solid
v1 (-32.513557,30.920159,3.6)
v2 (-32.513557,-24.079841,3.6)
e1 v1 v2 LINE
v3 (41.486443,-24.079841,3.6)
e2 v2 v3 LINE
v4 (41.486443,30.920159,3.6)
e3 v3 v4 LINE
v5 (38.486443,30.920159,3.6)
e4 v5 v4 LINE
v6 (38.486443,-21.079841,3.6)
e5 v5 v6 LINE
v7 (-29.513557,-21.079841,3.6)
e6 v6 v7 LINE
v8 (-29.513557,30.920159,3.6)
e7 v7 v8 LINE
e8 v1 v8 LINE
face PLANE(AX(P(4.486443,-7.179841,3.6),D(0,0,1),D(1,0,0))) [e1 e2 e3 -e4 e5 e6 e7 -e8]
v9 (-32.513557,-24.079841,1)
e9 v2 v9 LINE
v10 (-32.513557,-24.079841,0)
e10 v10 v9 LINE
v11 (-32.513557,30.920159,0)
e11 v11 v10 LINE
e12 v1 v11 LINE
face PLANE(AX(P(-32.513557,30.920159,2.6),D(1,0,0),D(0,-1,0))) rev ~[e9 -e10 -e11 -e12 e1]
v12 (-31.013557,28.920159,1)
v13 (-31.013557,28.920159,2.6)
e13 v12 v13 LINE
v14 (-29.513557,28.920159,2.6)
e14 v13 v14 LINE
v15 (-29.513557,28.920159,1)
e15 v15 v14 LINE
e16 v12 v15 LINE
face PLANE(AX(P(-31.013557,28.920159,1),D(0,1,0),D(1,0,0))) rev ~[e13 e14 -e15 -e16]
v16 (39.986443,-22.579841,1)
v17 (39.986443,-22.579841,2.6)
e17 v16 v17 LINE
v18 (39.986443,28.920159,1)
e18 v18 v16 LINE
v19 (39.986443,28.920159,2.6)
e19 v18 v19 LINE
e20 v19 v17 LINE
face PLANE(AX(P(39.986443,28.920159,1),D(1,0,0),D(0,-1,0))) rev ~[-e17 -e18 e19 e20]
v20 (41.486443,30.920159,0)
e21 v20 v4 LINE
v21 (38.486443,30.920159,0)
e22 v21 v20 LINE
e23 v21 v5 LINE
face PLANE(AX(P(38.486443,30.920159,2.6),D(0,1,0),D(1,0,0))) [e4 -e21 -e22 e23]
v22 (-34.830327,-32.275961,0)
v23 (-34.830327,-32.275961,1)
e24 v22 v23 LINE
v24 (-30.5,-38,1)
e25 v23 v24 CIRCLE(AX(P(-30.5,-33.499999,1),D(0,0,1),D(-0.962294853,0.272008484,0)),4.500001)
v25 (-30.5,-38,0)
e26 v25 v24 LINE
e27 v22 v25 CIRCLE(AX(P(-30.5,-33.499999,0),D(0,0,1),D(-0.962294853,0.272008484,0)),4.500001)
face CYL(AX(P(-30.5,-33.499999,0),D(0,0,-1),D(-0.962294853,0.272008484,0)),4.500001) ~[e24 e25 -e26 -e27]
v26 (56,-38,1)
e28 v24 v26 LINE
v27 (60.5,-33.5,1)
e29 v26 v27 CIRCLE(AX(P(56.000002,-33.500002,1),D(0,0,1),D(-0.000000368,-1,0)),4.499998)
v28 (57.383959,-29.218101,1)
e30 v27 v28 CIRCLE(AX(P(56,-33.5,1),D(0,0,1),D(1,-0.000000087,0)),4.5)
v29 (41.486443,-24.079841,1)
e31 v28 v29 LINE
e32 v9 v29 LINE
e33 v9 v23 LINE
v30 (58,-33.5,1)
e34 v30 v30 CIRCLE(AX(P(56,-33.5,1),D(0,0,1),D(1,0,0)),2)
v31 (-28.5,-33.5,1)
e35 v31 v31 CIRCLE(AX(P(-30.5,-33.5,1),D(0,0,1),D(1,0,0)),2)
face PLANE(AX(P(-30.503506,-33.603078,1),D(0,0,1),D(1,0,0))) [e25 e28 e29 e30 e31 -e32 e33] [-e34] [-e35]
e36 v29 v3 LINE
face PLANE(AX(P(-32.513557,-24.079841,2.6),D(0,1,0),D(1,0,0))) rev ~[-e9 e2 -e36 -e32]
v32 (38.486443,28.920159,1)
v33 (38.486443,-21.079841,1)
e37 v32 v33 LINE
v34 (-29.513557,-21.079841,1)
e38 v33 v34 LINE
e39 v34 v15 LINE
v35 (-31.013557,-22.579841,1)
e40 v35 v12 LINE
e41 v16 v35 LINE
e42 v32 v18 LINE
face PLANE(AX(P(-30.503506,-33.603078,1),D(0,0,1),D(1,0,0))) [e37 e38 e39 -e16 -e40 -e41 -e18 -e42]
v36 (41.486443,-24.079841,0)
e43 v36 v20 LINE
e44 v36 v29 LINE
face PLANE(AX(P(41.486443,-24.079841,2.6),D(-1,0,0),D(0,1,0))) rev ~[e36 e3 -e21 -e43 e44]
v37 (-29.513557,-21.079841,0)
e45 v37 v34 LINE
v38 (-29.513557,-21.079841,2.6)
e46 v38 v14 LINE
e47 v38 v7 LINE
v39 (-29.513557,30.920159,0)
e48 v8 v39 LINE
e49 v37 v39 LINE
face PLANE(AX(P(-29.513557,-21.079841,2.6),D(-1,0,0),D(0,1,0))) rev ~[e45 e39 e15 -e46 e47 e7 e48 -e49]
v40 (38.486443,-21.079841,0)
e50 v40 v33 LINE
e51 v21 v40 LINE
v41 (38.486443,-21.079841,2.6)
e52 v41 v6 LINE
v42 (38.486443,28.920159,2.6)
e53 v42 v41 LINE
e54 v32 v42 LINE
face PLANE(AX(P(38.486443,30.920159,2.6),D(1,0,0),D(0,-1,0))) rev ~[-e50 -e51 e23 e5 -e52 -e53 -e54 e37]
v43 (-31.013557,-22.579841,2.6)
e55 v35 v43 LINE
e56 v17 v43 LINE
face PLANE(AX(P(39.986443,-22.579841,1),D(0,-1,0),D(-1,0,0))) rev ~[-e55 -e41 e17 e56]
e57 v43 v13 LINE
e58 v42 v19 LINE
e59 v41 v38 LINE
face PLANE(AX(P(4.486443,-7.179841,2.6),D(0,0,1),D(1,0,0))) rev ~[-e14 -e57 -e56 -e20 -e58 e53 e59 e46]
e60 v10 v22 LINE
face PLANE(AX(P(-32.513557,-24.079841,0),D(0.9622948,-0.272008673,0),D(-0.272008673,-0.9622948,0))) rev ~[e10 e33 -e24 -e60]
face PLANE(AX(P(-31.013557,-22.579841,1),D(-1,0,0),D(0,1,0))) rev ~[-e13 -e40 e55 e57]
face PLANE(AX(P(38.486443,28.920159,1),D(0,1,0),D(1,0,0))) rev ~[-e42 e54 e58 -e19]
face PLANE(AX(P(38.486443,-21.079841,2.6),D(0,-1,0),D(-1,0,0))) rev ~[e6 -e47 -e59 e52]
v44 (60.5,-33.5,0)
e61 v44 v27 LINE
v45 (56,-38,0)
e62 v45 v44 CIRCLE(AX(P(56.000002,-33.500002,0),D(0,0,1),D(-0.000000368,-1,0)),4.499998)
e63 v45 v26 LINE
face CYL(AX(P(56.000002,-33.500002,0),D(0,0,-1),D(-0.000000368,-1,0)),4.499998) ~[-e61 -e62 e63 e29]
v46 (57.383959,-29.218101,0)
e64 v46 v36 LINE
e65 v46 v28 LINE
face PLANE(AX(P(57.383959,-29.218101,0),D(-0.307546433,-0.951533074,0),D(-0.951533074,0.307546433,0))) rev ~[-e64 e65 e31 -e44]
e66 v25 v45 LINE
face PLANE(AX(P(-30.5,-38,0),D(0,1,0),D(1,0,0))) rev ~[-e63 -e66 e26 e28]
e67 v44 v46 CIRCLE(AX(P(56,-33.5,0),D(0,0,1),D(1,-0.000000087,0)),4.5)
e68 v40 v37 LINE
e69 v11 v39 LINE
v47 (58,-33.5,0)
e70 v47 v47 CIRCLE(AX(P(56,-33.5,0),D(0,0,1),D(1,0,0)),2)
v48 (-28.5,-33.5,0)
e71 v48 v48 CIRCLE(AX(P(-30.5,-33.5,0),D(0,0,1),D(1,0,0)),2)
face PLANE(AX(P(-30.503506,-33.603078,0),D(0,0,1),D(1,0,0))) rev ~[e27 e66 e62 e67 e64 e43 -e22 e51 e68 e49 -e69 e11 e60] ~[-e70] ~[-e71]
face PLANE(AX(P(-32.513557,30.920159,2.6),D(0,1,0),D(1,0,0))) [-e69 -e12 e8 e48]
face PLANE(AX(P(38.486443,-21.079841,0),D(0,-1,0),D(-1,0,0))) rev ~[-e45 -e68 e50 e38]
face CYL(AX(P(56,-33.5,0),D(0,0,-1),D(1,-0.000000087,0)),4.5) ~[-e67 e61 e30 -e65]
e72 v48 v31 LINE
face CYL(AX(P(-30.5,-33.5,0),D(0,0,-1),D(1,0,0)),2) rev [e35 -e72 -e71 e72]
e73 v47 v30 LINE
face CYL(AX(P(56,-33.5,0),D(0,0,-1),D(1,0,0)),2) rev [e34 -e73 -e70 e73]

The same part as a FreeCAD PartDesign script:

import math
import FreeCAD as App
import Part
import Sketcher
from FreeCAD import Vector


def add_polygon(sketch, points):
    """Adds a closed chain of lines whose ends are joined by coincident constraints."""
    first, n = sketch.GeometryCount, len(points)
    for a, b in zip(points, points[1:] + points[:1]):
        sketch.addGeometry(Part.LineSegment(App.Vector(*a, 0), App.Vector(*b, 0)), False)
    for i in range(n):
        sketch.addConstraint(Sketcher.Constraint("Coincident", first + i, 2, first + (i + 1) % n, 1))

doc = App.newDocument("Part")
params = doc.addObject("Spreadsheet::Sheet", "Params")
for row, (alias, value) in enumerate([
    ("sketch1_diameter", "4 mm"),
    ("sketch1_diameter2", "4 mm"),
    ("sketch1_radius", "4.500001 mm"),
    ("sketch1_radius2", "4.499998 mm"),
    ("sketch1_width", "3 mm"),
    ("pad1_length", "1 mm"),
    ("sketch2_width", "74 mm"),
    ("sketch2_width2", "3 mm"),
    ("sketch2_width3", "71 mm"),
    ("sketch2_height", "55 mm"),
    ("sketch2_height2", "2 mm"),
    ("pad2_length", "1.6 mm"),
    ("sketch3_width", "74 mm"),
    ("sketch3_width2", "3 mm"),
    ("sketch3_height", "55 mm"),
    ("sketch3_height2", "52 mm"),
    ("pad3_length", "1 mm"),
], start=1):
    params.set(f"A{row}", alias)
    params.set(f"B{row}", "=" + value)
    params.setAlias(f"B{row}", alias)

body = doc.addObject("PartDesign::Body", "Body")

# Sketch on XY plane
sketch1 = body.newObject("Sketcher::SketchObject", "Sketch")
sketch1.AttachmentSupport = (doc.getObject("XY_Plane"), [""])
sketch1.MapMode = "FlatFace"
sketch1.addGeometry([
    Part.ArcOfCircle(Part.Circle(Vector(-30.5, -33.499999, 0), Vector(0, 0, 1), 4.500001), math.radians(164.216182), math.radians(269.999994)),  # 0
    Part.LineSegment(Vector(-30.5, -38, 0), Vector(56, -38, 0)),  # 1
    Part.ArcOfCircle(Part.Circle(Vector(56.000002, -33.500002, 0), Vector(0, 0, 1), 4.499998), math.radians(-90.000021), math.radians(0.000021)),  # 2
    Part.ArcOfCircle(Part.Circle(Vector(56, -33.5, 0), Vector(0, 0, 1), 4.5), math.radians(-0.000005), math.radians(72.088573)),  # 3
    Part.LineSegment(Vector(57.383959, -29.218101, 0), Vector(41.486443, -24.079841, 0)),  # 4
    Part.LineSegment(Vector(41.486443, -24.079841, 0), Vector(41.486443, 30.920159, 0)),  # 5
    Part.LineSegment(Vector(41.486443, 30.920159, 0), Vector(38.486443, 30.920159, 0)),  # 6
    Part.LineSegment(Vector(38.486443, 30.920159, 0), Vector(38.486443, -21.079841, 0)),  # 7
    Part.LineSegment(Vector(38.486443, -21.079841, 0), Vector(-29.513557, -21.079841, 0)),  # 8
    Part.LineSegment(Vector(-29.513557, -21.079841, 0), Vector(-29.513557, 30.920159, 0)),  # 9
    Part.LineSegment(Vector(-29.513557, 30.920159, 0), Vector(-32.513557, 30.920159, 0)),  # 10
    Part.LineSegment(Vector(-32.513557, 30.920159, 0), Vector(-32.513557, -24.079841, 0)),  # 11
    Part.LineSegment(Vector(-32.513557, -24.079841, 0), Vector(-34.830327, -32.275961, 0)),  # 12
    Part.Circle(Vector(-30.5, -33.5, 0), Vector(0, 0, 1), 2),  # 13
    Part.Circle(Vector(56, -33.5, 0), Vector(0, 0, 1), 2),  # 14
], False)
sketch1.addConstraint([
    Sketcher.Constraint("Coincident", 0, 2, 1, 1),
    Sketcher.Constraint("Coincident", 1, 2, 2, 1),
    Sketcher.Constraint("Coincident", 2, 2, 3, 1),
    Sketcher.Constraint("Coincident", 3, 2, 4, 1),
    Sketcher.Constraint("Coincident", 4, 2, 5, 1),
    Sketcher.Constraint("Coincident", 5, 2, 6, 1),
    Sketcher.Constraint("Coincident", 6, 2, 7, 1),
    Sketcher.Constraint("Coincident", 7, 2, 8, 1),
    Sketcher.Constraint("Coincident", 8, 2, 9, 1),
    Sketcher.Constraint("Coincident", 9, 2, 10, 1),
    Sketcher.Constraint("Coincident", 10, 2, 11, 1),
    Sketcher.Constraint("Coincident", 11, 2, 12, 1),
    Sketcher.Constraint("Coincident", 12, 2, 0, 1),
    Sketcher.Constraint("Horizontal", 1),
    Sketcher.Constraint("Vertical", 5),
    Sketcher.Constraint("Horizontal", 6),
    Sketcher.Constraint("Vertical", 7),
    Sketcher.Constraint("Horizontal", 8),
    Sketcher.Constraint("Vertical", 9),
    Sketcher.Constraint("Horizontal", 10),
    Sketcher.Constraint("Vertical", 11),
    Sketcher.Constraint("Coincident", 3, 3, 2, 3),
    Sketcher.Constraint("Coincident", 13, 3, 0, 3),
    Sketcher.Constraint("Coincident", 14, 3, 2, 3),
    Sketcher.Constraint("Diameter", 13, 4.0),
    Sketcher.Constraint("Diameter", 14, 4.0),
    Sketcher.Constraint("Radius", 0, 4.500001),
    Sketcher.Constraint("Radius", 2, 4.499998),
    Sketcher.Constraint("DistanceX", 6, 2, 6, 1, 3.0),
    Sketcher.Constraint("DistanceX", 8, 2, 8, 1, 68.0),
    Sketcher.Constraint("DistanceX", 10, 2, 10, 1, 3.0),
    Sketcher.Constraint("DistanceY", 5, 1, 5, 2, 55.0),
    Sketcher.Constraint("DistanceY", 7, 2, 7, 1, 52.0),
    Sketcher.Constraint("DistanceY", 9, 1, 9, 2, 52.0),
    Sketcher.Constraint("DistanceY", 11, 2, 11, 1, 55.0),
    Sketcher.Constraint("DistanceX", 1, 1, 1, 2, 86.5),
    Sketcher.Constraint("DistanceX", -1, 1, 2, 3, 56.000002),
    Sketcher.Constraint("DistanceY", 0, 2, -1, 1, 38.0),
    Sketcher.Constraint("DistanceX", -1, 1, 1, 2, 56.0),
    Sketcher.Constraint("DistanceX", 0, 3, 2, 2, 91.0),
    Sketcher.Constraint("DistanceY", 2, 2, -1, 1, 33.5),
    Sketcher.Constraint("DistanceY", 3, 2, -1, 1, 29.218101),
    Sketcher.Constraint("DistanceY", 4, 2, -1, 1, 24.079841),
    Sketcher.Constraint("DistanceY", 12, 2, -1, 1, 32.275961),
    Sketcher.Constraint("DistanceX", 4, 2, 2, 3, 14.513559),
])
sketch1.setExpression("Constraints[24]", "Params.sketch1_diameter")
sketch1.setExpression("Constraints[25]", "Params.sketch1_diameter2")
sketch1.setExpression("Constraints[26]", "Params.sketch1_radius")
sketch1.setExpression("Constraints[27]", "Params.sketch1_radius2")
sketch1.setExpression("Constraints[28]", "Params.sketch1_width")
pad1 = body.newObject("PartDesign::Pad", "Pad")
pad1.Profile = sketch1
pad1.setExpression("Length", "Params.pad1_length")

# Sketch on XY plane
sketch2 = body.newObject("Sketcher::SketchObject", "Sketch001")
sketch2.AttachmentSupport = (doc.getObject("XY_Plane"), [""])
sketch2.MapMode = "FlatFace"
sketch2.AttachmentOffset = App.Placement(Vector(0, 0, 1), App.Rotation())
add_polygon(sketch2, [(-32.5, -24.1), (41.5, -24.1), (41.5, 30.9), (38.5, 30.9), (38.5, 28.9), (40, 28.9), (40, -22.6), (-31, -22.6), (-31, 28.9), (-29.5, 28.9), (-29.5, 30.9), (-32.5, 30.9)])  # lines 0-11
sketch2.addConstraint([
    Sketcher.Constraint("Horizontal", 0),
    Sketcher.Constraint("Vertical", 1),
    Sketcher.Constraint("Horizontal", 2),
    Sketcher.Constraint("Vertical", 3),
    Sketcher.Constraint("Horizontal", 4),
    Sketcher.Constraint("Vertical", 5),
    Sketcher.Constraint("Horizontal", 6),
    Sketcher.Constraint("Vertical", 7),
    Sketcher.Constraint("Horizontal", 8),
    Sketcher.Constraint("Vertical", 9),
    Sketcher.Constraint("Horizontal", 10),
    Sketcher.Constraint("Vertical", 11),
    Sketcher.Constraint("Horizontal", 4, 2, 7, 2),
    Sketcher.Constraint("Horizontal", 2, 2, 9, 2),
    Sketcher.Constraint("Equal", 4, 8),
    Sketcher.Constraint("Equal", 2, 10),
    Sketcher.Constraint("DistanceX", 0, 1, 0, 2, 74.0),
    Sketcher.Constraint("DistanceX", 2, 2, 2, 1, 3.0),
    Sketcher.Constraint("DistanceX", 6, 2, 6, 1, 71.0),
    Sketcher.Constraint("DistanceY", 1, 1, 1, 2, 55.0),
    Sketcher.Constraint("DistanceY", 3, 2, 3, 1, 2.0),
    Sketcher.Constraint("DistanceY", 5, 2, 5, 1, 51.5),
    Sketcher.Constraint("DistanceY", 0, 2, -1, 1, 24.079841),
    Sketcher.Constraint("DistanceX", -1, 1, 0, 2, 41.486443),
])
sketch2.setExpression("Constraints[28]", "Params.sketch2_width")
sketch2.setExpression("Constraints[29]", "Params.sketch2_width2")
sketch2.setExpression("Constraints[30]", "Params.sketch2_width3")
sketch2.setExpression("Constraints[31]", "Params.sketch2_height")
sketch2.setExpression("Constraints[32]", "Params.sketch2_height2")
pad2 = body.newObject("PartDesign::Pad", "Pad001")
pad2.Profile = sketch2
pad2.setExpression("Length", "Params.pad2_length")

# Sketch on XY plane
sketch3 = body.newObject("Sketcher::SketchObject", "Sketch002")
sketch3.AttachmentSupport = (doc.getObject("XY_Plane"), [""])
sketch3.MapMode = "FlatFace"
sketch3.AttachmentOffset = App.Placement(Vector(0, 0, 2.6), App.Rotation())
add_polygon(sketch3, [(-32.5, -24.1), (41.5, -24.1), (41.5, 30.9), (38.5, 30.9), (38.5, -21.1), (-29.5, -21.1), (-29.5, 30.9), (-32.5, 30.9)])  # lines 0-7
sketch3.addConstraint([
    Sketcher.Constraint("Horizontal", 0),
    Sketcher.Constraint("Vertical", 1),
    Sketcher.Constraint("Horizontal", 2),
    Sketcher.Constraint("Vertical", 3),
    Sketcher.Constraint("Horizontal", 4),
    Sketcher.Constraint("Vertical", 5),
    Sketcher.Constraint("Horizontal", 6),
    Sketcher.Constraint("Vertical", 7),
    Sketcher.Constraint("Horizontal", 2, 2, 5, 2),
    Sketcher.Constraint("Equal", 2, 6),
    Sketcher.Constraint("DistanceX", 0, 1, 0, 2, 74.0),
    Sketcher.Constraint("DistanceX", 2, 2, 2, 1, 3.0),
    Sketcher.Constraint("DistanceY", 1, 1, 1, 2, 55.0),
    Sketcher.Constraint("DistanceY", 3, 2, 3, 1, 52.0),
    Sketcher.Constraint("DistanceY", 0, 2, -1, 1, 24.079841),
    Sketcher.Constraint("DistanceX", -1, 1, 0, 2, 41.486443),
])
sketch3.setExpression("Constraints[18]", "Params.sketch3_width")
sketch3.setExpression("Constraints[19]", "Params.sketch3_width2")
sketch3.setExpression("Constraints[20]", "Params.sketch3_height")
sketch3.setExpression("Constraints[21]", "Params.sketch3_height2")
pad3 = body.newObject("PartDesign::Pad", "Pad002")
pad3.Profile = sketch3
pad3.setExpression("Length", "Params.pad3_length")

doc.recompute()
